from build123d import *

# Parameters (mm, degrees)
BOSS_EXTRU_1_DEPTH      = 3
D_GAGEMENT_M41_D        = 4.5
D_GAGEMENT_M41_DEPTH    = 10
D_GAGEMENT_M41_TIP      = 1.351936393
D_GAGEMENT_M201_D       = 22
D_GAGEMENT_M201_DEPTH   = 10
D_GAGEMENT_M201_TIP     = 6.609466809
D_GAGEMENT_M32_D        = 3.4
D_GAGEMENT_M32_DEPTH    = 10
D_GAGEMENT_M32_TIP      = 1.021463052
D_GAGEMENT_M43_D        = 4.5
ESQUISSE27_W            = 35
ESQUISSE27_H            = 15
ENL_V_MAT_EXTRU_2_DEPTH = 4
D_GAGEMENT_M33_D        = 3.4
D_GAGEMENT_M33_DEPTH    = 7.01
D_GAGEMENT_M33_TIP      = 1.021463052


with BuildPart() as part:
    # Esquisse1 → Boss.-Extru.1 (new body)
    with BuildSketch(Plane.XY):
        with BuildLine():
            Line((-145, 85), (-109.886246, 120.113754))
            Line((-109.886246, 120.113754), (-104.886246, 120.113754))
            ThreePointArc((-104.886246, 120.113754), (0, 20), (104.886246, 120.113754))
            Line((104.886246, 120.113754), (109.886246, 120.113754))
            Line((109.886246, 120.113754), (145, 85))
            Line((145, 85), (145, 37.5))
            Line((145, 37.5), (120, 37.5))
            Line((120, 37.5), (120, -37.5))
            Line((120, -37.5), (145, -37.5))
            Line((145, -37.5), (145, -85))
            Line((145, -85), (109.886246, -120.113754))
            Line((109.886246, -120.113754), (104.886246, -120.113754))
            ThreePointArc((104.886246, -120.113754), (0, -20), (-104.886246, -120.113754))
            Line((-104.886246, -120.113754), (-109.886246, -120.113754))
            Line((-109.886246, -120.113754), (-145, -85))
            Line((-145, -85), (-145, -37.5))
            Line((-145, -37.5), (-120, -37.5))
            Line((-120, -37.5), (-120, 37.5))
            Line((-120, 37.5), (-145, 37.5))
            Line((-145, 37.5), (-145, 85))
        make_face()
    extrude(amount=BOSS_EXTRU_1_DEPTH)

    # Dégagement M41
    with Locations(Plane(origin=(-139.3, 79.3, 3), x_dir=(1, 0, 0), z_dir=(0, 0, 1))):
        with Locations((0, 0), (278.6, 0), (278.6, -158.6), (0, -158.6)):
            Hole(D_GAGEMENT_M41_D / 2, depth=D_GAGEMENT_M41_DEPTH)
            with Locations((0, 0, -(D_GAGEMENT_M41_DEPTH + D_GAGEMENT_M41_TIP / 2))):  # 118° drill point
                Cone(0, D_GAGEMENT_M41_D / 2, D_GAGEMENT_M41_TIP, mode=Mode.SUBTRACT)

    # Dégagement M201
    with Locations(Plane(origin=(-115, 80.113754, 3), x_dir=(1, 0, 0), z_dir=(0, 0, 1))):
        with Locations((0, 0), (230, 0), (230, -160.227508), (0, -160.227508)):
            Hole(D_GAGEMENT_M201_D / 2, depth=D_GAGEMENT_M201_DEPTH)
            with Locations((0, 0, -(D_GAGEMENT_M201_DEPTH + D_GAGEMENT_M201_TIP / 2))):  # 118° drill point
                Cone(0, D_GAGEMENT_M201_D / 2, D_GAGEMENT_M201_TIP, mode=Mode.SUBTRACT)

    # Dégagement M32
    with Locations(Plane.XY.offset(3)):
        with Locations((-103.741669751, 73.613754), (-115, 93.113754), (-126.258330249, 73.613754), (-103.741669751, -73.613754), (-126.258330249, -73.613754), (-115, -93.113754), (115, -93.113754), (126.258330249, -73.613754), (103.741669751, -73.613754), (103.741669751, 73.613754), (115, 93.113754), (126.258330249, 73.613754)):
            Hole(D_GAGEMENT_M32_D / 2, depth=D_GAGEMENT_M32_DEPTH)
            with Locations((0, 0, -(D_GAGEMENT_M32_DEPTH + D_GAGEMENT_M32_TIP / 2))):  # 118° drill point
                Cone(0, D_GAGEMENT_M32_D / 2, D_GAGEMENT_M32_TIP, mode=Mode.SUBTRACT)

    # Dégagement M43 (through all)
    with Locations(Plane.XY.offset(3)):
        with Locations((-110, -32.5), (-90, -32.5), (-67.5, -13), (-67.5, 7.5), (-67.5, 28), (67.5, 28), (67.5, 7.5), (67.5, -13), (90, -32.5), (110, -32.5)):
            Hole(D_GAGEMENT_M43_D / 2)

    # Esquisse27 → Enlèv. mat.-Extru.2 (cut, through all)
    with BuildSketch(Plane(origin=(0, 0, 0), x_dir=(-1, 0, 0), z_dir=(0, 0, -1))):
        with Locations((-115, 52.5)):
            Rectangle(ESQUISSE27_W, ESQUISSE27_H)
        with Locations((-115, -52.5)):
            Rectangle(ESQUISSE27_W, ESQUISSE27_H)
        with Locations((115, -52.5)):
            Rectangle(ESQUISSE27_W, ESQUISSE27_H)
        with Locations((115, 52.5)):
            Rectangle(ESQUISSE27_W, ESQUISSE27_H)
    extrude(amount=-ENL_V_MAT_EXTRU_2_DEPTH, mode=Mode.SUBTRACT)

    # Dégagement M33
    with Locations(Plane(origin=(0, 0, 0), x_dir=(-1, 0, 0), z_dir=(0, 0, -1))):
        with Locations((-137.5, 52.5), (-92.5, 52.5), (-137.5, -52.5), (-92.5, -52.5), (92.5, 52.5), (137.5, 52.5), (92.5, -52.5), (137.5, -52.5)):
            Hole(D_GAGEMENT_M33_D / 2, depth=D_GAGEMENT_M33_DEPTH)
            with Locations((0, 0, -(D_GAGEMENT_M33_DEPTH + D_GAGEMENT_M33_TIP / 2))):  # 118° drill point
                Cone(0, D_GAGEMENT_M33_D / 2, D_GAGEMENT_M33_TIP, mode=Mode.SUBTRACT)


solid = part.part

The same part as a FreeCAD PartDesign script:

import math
import FreeCAD as App
import Part
import Sketcher
Q = App.Units.Quantity


def add_polygon(sketch, points):
    """Adds a closed chain of lines whose ends are joined by coincident constraints."""
    first, n = sketch.GeometryCount, len(points)
    for a, b in zip(points, points[1:] + points[:1]):
        sketch.addGeometry(Part.LineSegment(App.Vector(*a, 0), App.Vector(*b, 0)), False)
    for i in range(n):
        sketch.addConstraint(Sketcher.Constraint("Coincident", first + i, 2, first + (i + 1) % n, 1))

doc = App.newDocument("Part")
body = doc.addObject("PartDesign::Body", "Body")

# Sketch on XY plane
sketch1 = body.newObject("Sketcher::SketchObject", "Sketch")
sketch1.AttachmentSupport = (doc.getObject("XY_Plane"), [""])
sketch1.MapMode = "FlatFace"
sketch1.addGeometry(Part.LineSegment(App.Vector(-110, 120, 0), App.Vector(-145, 85, 0)), False)
sketch1.addGeometry(Part.LineSegment(App.Vector(-145, 85, 0), App.Vector(-145, 38, 0)), False)
sketch1.addGeometry(Part.LineSegment(App.Vector(-145, 38, 0), App.Vector(-120, 38, 0)), False)
sketch1.addGeometry(Part.LineSegment(App.Vector(-120, 38, 0), App.Vector(-120, -38, 0)), False)
sketch1.addGeometry(Part.LineSegment(App.Vector(-120, -38, 0), App.Vector(-145, -38, 0)), False)
sketch1.addGeometry(Part.LineSegment(App.Vector(-145, -38, 0), App.Vector(-145, -85, 0)), False)
sketch1.addGeometry(Part.LineSegment(App.Vector(-145, -85, 0), App.Vector(-110, -120, 0)), False)
sketch1.addGeometry(Part.LineSegment(App.Vector(-110, -120, 0), App.Vector(-105, -120, 0)), False)
sketch1.addGeometry(Part.ArcOfCircle(Part.Circle(App.Vector(0, -125, 0), App.Vector(0, 0, 1), 105), math.radians(3), math.radians(177)), False)
sketch1.addGeometry(Part.LineSegment(App.Vector(105, -120, 0), App.Vector(110, -120, 0)), False)
sketch1.addGeometry(Part.LineSegment(App.Vector(110, -120, 0), App.Vector(145, -85, 0)), False)
sketch1.addGeometry(Part.LineSegment(App.Vector(145, -85, 0), App.Vector(145, -38, 0)), False)
sketch1.addGeometry(Part.LineSegment(App.Vector(145, -38, 0), App.Vector(120, -38, 0)), False)
sketch1.addGeometry(Part.LineSegment(App.Vector(120, -38, 0), App.Vector(120, 38, 0)), False)
sketch1.addGeometry(Part.LineSegment(App.Vector(120, 38, 0), App.Vector(145, 38, 0)), False)
sketch1.addGeometry(Part.LineSegment(App.Vector(145, 38, 0), App.Vector(145, 85, 0)), False)
sketch1.addGeometry(Part.LineSegment(App.Vector(145, 85, 0), App.Vector(110, 120, 0)), False)
sketch1.addGeometry(Part.LineSegment(App.Vector(110, 120, 0), App.Vector(105, 120, 0)), False)
sketch1.addGeometry(Part.ArcOfCircle(Part.Circle(App.Vector(0, 125, 0), App.Vector(0, 0, 1), 105), math.radians(-177), math.radians(-3)), False)
sketch1.addGeometry(Part.LineSegment(App.Vector(-105, 120, 0), App.Vector(-110, 120, 0)), False)
sketch1.addConstraint(Sketcher.Constraint("Coincident", 0, 2, 1, 1))
sketch1.addConstraint(Sketcher.Constraint("Coincident", 1, 2, 2, 1))
sketch1.addConstraint(Sketcher.Constraint("Coincident", 2, 2, 3, 1))
sketch1.addConstraint(Sketcher.Constraint("Coincident", 3, 2, 4, 1))
sketch1.addConstraint(Sketcher.Constraint("Coincident", 4, 2, 5, 1))
sketch1.addConstraint(Sketcher.Constraint("Coincident", 5, 2, 6, 1))
sketch1.addConstraint(Sketcher.Constraint("Coincident", 6, 2, 7, 1))
sketch1.addConstraint(Sketcher.Constraint("Coincident", 7, 2, 8, 2))
sketch1.addConstraint(Sketcher.Constraint("Coincident", 8, 1, 9, 1))
sketch1.addConstraint(Sketcher.Constraint("Coincident", 9, 2, 10, 1))
sketch1.addConstraint(Sketcher.Constraint("Coincident", 10, 2, 11, 1))
sketch1.addConstraint(Sketcher.Constraint("Coincident", 11, 2, 12, 1))
sketch1.addConstraint(Sketcher.Constraint("Coincident", 12, 2, 13, 1))
sketch1.addConstraint(Sketcher.Constraint("Coincident", 13, 2, 14, 1))
sketch1.addConstraint(Sketcher.Constraint("Coincident", 14, 2, 15, 1))
sketch1.addConstraint(Sketcher.Constraint("Coincident", 15, 2, 16, 1))
sketch1.addConstraint(Sketcher.Constraint("Coincident", 16, 2, 17, 1))
sketch1.addConstraint(Sketcher.Constraint("Coincident", 17, 2, 18, 2))
sketch1.addConstraint(Sketcher.Constraint("Coincident", 18, 1, 19, 1))
sketch1.addConstraint(Sketcher.Constraint("Coincident", 19, 2, 0, 1))
sketch1.addConstraint(Sketcher.Constraint("Vertical", 1))
sketch1.addConstraint(Sketcher.Constraint("Horizontal", 2))
sketch1.addConstraint(Sketcher.Constraint("Vertical", 3))
sketch1.addConstraint(Sketcher.Constraint("Horizontal", 4))
sketch1.addConstraint(Sketcher.Constraint("Vertical", 5))
sketch1.addConstraint(Sketcher.Constraint("Horizontal", 7))
sketch1.addConstraint(Sketcher.Constraint("Horizontal", 9))
sketch1.addConstraint(Sketcher.Constraint("Vertical", 11))
sketch1.addConstraint(Sketcher.Constraint("Horizontal", 12))
sketch1.addConstraint(Sketcher.Constraint("Vertical", 13))
sketch1.addConstraint(Sketcher.Constraint("Horizontal", 14))
sketch1.addConstraint(Sketcher.Constraint("Vertical", 15))
sketch1.addConstraint(Sketcher.Constraint("Horizontal", 17))
sketch1.addConstraint(Sketcher.Constraint("Horizontal", 19))
sketch1.addConstraint(Sketcher.Constraint("Equal", 8, 18))
sketch1.addConstraint(Sketcher.Constraint("Symmetric", 8, 3, 18, 3, -1, 1))
sketch1.addConstraint(Sketcher.Constraint("Symmetric", 0, 2, 10, 2, -1, 1))
sketch1.addConstraint(Sketcher.Constraint("Symmetric", 2, 2, 12, 2, -1, 1))
sketch1.addConstraint(Sketcher.Constraint("Symmetric", 4, 2, 14, 2, -1, 1))
sketch1.addConstraint(Sketcher.Constraint("Symmetric", 6, 2, 16, 2, -1, 1))
sketch1.addConstraint(Sketcher.Constraint("Symmetric", 9, 2, 19, 2, -1, 1))
sketch1.addConstraint(Sketcher.Constraint("Symmetric", 7, 2, 8, 1, -2))
sketch1.addConstraint(Sketcher.Constraint("Symmetric", 5, 2, 10, 2, -2))
sketch1.addConstraint(Sketcher.Constraint("Perpendicular", 0, 6))
sketch1.addConstraint(Sketcher.Constraint("Perpendicular", 10, 16))
sketch1.addConstraint(Sketcher.Constraint("Horizontal", 4, 2, 11, 2))
sketch1.addConstraint(Sketcher.Constraint("Vertical", 9, 2, 16, 2))
sketch1.addConstraint(Sketcher.Constraint("Radius", 8, Q("105 mm")))
sketch1.addConstraint(Sketcher.Constraint("DistanceX", 2, 1, 2, 2, Q("25 mm")))
sketch1.addConstraint(Sketcher.Constraint("DistanceX", 7, 1, 7, 2, Q("5 mm")))
sketch1.addConstraint(Sketcher.Constraint("DistanceY", 3, 2, 3, 1, Q("75 mm")))
sketch1.addConstraint(Sketcher.Constraint("DistanceY", 1, 2, 1, 1, Q("47.5 mm")))
sketch1.addConstraint(Sketcher.Constraint("DistanceY", 8, 3, -1, 1, Q("125 mm")))
sketch1.addConstraint(Sketcher.Constraint("DistanceX", 0, 2, -1, 1, Q("145 mm")))
pad1 = body.newObject("PartDesign::Pad", "Pad")
pad1.Profile = sketch1
pad1.Length = 3

# Sketch on XY plane
sketch2 = body.newObject("Sketcher::SketchObject", "Sketch001")
sketch2.AttachmentSupport = (doc.getObject("XY_Plane"), [""])
sketch2.MapMode = "FlatFace"
sketch2.AttachmentOffset = App.Placement(App.Vector(0, 0, 3), App.Rotation())
sketch2.addGeometry(Part.Circle(App.Vector(-139.3, 79.3, 0), App.Vector(0, 0, 1), 2.2), False)
sketch2.addGeometry(Part.Circle(App.Vector(139.3, 79.3, 0), App.Vector(0, 0, 1), 2.2), False)
sketch2.addGeometry(Part.Circle(App.Vector(139.3, -79.3, 0), App.Vector(0, 0, 1), 2.2), False)
sketch2.addGeometry(Part.Circle(App.Vector(-139.3, -79.3, 0), App.Vector(0, 0, 1), 2.2), False)
sketch2.addConstraint(Sketcher.Constraint("Equal", 0, 1))
sketch2.addConstraint(Sketcher.Constraint("Equal", 1, 2))
sketch2.addConstraint(Sketcher.Constraint("Equal", 2, 3))
sketch2.addConstraint(Sketcher.Constraint("Symmetric", 0, 3, 2, 3, -1, 1))
sketch2.addConstraint(Sketcher.Constraint("Symmetric", 1, 3, 3, 3, -1, 1))
sketch2.addConstraint(Sketcher.Constraint("Symmetric", 0, 3, 1, 3, -2))
sketch2.addConstraint(Sketcher.Constraint("Diameter", 0, Q("4.5 mm")))
sketch2.addConstraint(Sketcher.Constraint("DistanceX", 0, 3, -1, 1, Q("139.3 mm")))
sketch2.addConstraint(Sketcher.Constraint("DistanceY", -1, 1, 0, 3, Q("79.3 mm")))
doc.recompute()
hole = body.newObject("PartDesign::Hole", "Hole")
hole.Profile = sketch2
hole.ThreadType = "None"
hole.Diameter = 4.5
hole.DepthType = "Dimension"
hole.Depth = 10
hole.DrillPoint = "Angled"
hole.DrillPointAngle = 118

# Sketch on XY plane
sketch3 = body.newObject("Sketcher::SketchObject", "Sketch002")
sketch3.AttachmentSupport = (doc.getObject("XY_Plane"), [""])
sketch3.MapMode = "FlatFace"
sketch3.AttachmentOffset = App.Placement(App.Vector(0, 0, 3), App.Rotation())
sketch3.addGeometry(Part.Circle(App.Vector(-115, 80, 0), App.Vector(0, 0, 1), 11), False)
sketch3.addGeometry(Part.Circle(App.Vector(115, 80, 0), App.Vector(0, 0, 1), 11), False)
sketch3.addGeometry(Part.Circle(App.Vector(115, -80, 0), App.Vector(0, 0, 1), 11), False)
sketch3.addGeometry(Part.Circle(App.Vector(-115, -80, 0), App.Vector(0, 0, 1), 11), False)
sketch3.addConstraint(Sketcher.Constraint("Equal", 0, 1))
sketch3.addConstraint(Sketcher.Constraint("Equal", 1, 2))
sketch3.addConstraint(Sketcher.Constraint("Equal", 2, 3))
sketch3.addConstraint(Sketcher.Constraint("Symmetric", 0, 3, 2, 3, -1, 1))
sketch3.addConstraint(Sketcher.Constraint("Symmetric", 1, 3, 3, 3, -1, 1))
sketch3.addConstraint(Sketcher.Constraint("Symmetric", 0, 3, 1, 3, -2))
sketch3.addConstraint(Sketcher.Constraint("Diameter", 0, Q("22 mm")))
sketch3.addConstraint(Sketcher.Constraint("DistanceX", 0, 3, -1, 1, Q("115 mm")))
sketch3.addConstraint(Sketcher.Constraint("DistanceY", 2, 3, 1, 3, Q("160.227508 mm")))
doc.recompute()
hole2 = body.newObject("PartDesign::Hole", "Hole001")
hole2.Profile = sketch3
hole2.ThreadType = "None"
hole2.Diameter = 22
hole2.DepthType = "Dimension"
hole2.Depth = 10
hole2.DrillPoint = "Angled"
hole2.DrillPointAngle = 118

# Sketch on XY plane
sketch4 = body.newObject("Sketcher::SketchObject", "Sketch003")
sketch4.AttachmentSupport = (doc.getObject("XY_Plane"), [""])
sketch4.MapMode = "FlatFace"
sketch4.AttachmentOffset = App.Placement(App.Vector(0, 0, 3), App.Rotation())
sketch4.addGeometry(Part.Circle(App.Vector(-103.7, 73.6, 0), App.Vector(0, 0, 1), 1.7), False)
sketch4.addGeometry(Part.Circle(App.Vector(-115, 93.1, 0), App.Vector(0, 0, 1), 1.7), False)
sketch4.addGeometry(Part.Circle(App.Vector(-126.3, 73.6, 0), App.Vector(0, 0, 1), 1.7), False)
sketch4.addGeometry(Part.Circle(App.Vector(-103.7, -73.6, 0), App.Vector(0, 0, 1), 1.7), False)
sketch4.addGeometry(Part.Circle(App.Vector(-126.3, -73.6, 0), App.Vector(0, 0, 1), 1.7), False)
sketch4.addGeometry(Part.Circle(App.Vector(-115, -93.1, 0), App.Vector(0, 0, 1), 1.7), False)
sketch4.addGeometry(Part.Circle(App.Vector(115, -93.1, 0), App.Vector(0, 0, 1), 1.7), False)
sketch4.addGeometry(Part.Circle(App.Vector(126.3, -73.6, 0), App.Vector(0, 0, 1), 1.7), False)
sketch4.addGeometry(Part.Circle(App.Vector(103.7, -73.6, 0), App.Vector(0, 0, 1), 1.7), False)
sketch4.addGeometry(Part.Circle(App.Vector(103.7, 73.6, 0), App.Vector(0, 0, 1), 1.7), False)
sketch4.addGeometry(Part.Circle(App.Vector(115, 93.1, 0), App.Vector(0, 0, 1), 1.7), False)
sketch4.addGeometry(Part.Circle(App.Vector(126.3, 73.6, 0), App.Vector(0, 0, 1), 1.7), False)
sketch4.addConstraint(Sketcher.Constraint("Equal", 0, 1))
sketch4.addConstraint(Sketcher.Constraint("Equal", 1, 2))
sketch4.addConstraint(Sketcher.Constraint("Equal", 2, 3))
sketch4.addConstraint(Sketcher.Constraint("Equal", 3, 4))
sketch4.addConstraint(Sketcher.Constraint("Equal", 4, 5))
sketch4.addConstraint(Sketcher.Constraint("Equal", 5, 6))
sketch4.addConstraint(Sketcher.Constraint("Equal", 6, 7))
sketch4.addConstraint(Sketcher.Constraint("Equal", 7, 8))
sketch4.addConstraint(Sketcher.Constraint("Equal", 8, 9))
sketch4.addConstraint(Sketcher.Constraint("Equal", 9, 10))
sketch4.addConstraint(Sketcher.Constraint("Equal", 10, 11))
sketch4.addConstraint(Sketcher.Constraint("Symmetric", 1, 3, 6, 3, -1, 1))
sketch4.addConstraint(Sketcher.Constraint("Symmetric", 2, 3, 7, 3, -1, 1))
sketch4.addConstraint(Sketcher.Constraint("Symmetric", 0, 3, 8, 3, -1, 1))
sketch4.addConstraint(Sketcher.Constraint("Symmetric", 3, 3, 9, 3, -1, 1))
sketch4.addConstraint(Sketcher.Constraint("Symmetric", 5, 3, 10, 3, -1, 1))
sketch4.addConstraint(Sketcher.Constraint("Symmetric", 4, 3, 11, 3, -1, 1))
sketch4.addConstraint(Sketcher.Constraint("Symmetric", 5, 3, 6, 3, -2))
sketch4.addConstraint(Sketcher.Constraint("Symmetric", 4, 3, 7, 3, -2))
sketch4.addConstraint(Sketcher.Constraint("Symmetric", 3, 3, 8, 3, -2))
sketch4.addConstraint(Sketcher.Constraint("Horizontal", 0, 3, 2, 3))
sketch4.addConstraint(Sketcher.Constraint("Diameter", 0, Q("3.4 mm")))
sketch4.addConstraint(Sketcher.Constraint("DistanceX", 1, 3, -1, 1, Q("115 mm")))
sketch4.addConstraint(Sketcher.Constraint("DistanceX", 3, 3, 7, 3, Q("230 mm")))
sketch4.addConstraint(Sketcher.Constraint("DistanceY", 0, 3, 1, 3, Q("19.5 mm")))
sketch4.addConstraint(Sketcher.Constraint("DistanceX", 0, 3, -1, 1, Q("103.74167 mm")))
sketch4.addConstraint(Sketcher.Constraint("DistanceY", 3, 3, 0, 3, Q("147.227508 mm")))
doc.recompute()
hole3 = body.newObject("PartDesign::Hole", "Hole002")
hole3.Profile = sketch4
hole3.ThreadType = "None"
hole3.Diameter = 3.4
hole3.DepthType = "Dimension"
hole3.Depth = 10
hole3.DrillPoint = "Angled"
hole3.DrillPointAngle = 118

# Sketch on XY plane
sketch5 = body.newObject("Sketcher::SketchObject", "Sketch004")
sketch5.AttachmentSupport = (doc.getObject("XY_Plane"), [""])
sketch5.MapMode = "FlatFace"
sketch5.AttachmentOffset = App.Placement(App.Vector(0, 0, 3), App.Rotation())
sketch5.addGeometry(Part.Circle(App.Vector(-110, -32.5, 0), App.Vector(0, 0, 1), 2.2), False)
sketch5.addGeometry(Part.Circle(App.Vector(-90, -32.5, 0), App.Vector(0, 0, 1), 2.2), False)
sketch5.addGeometry(Part.Circle(App.Vector(-67.5, -13, 0), App.Vector(0, 0, 1), 2.2), False)
sketch5.addGeometry(Part.Circle(App.Vector(-67.5, 7.5, 0), App.Vector(0, 0, 1), 2.2), False)
sketch5.addGeometry(Part.Circle(App.Vector(-67.5, 28, 0), App.Vector(0, 0, 1), 2.2), False)
sketch5.addGeometry(Part.Circle(App.Vector(67.5, 28, 0), App.Vector(0, 0, 1), 2.2), False)
sketch5.addGeometry(Part.Circle(App.Vector(67.5, 7.5, 0), App.Vector(0, 0, 1), 2.2), False)
sketch5.addGeometry(Part.Circle(App.Vector(67.5, -13, 0), App.Vector(0, 0, 1), 2.2), False)
sketch5.addGeometry(Part.Circle(App.Vector(90, -32.5, 0), App.Vector(0, 0, 1), 2.2), False)
sketch5.addGeometry(Part.Circle(App.Vector(110, -32.5, 0), App.Vector(0, 0, 1), 2.2), False)
sketch5.addConstraint(Sketcher.Constraint("Equal", 0, 1))
sketch5.addConstraint(Sketcher.Constraint("Equal", 1, 2))
sketch5.addConstraint(Sketcher.Constraint("Equal", 2, 3))
sketch5.addConstraint(Sketcher.Constraint("Equal", 3, 4))
sketch5.addConstraint(Sketcher.Constraint("Equal", 4, 5))
sketch5.addConstraint(Sketcher.Constraint("Equal", 5, 6))
sketch5.addConstraint(Sketcher.Constraint("Equal", 6, 7))
sketch5.addConstraint(Sketcher.Constraint("Equal", 7, 8))
sketch5.addConstraint(Sketcher.Constraint("Equal", 8, 9))
sketch5.addConstraint(Sketcher.Constraint("Symmetric", 4, 3, 5, 3, -2))
sketch5.addConstraint(Sketcher.Constraint("Symmetric", 3, 3, 6, 3, -2))
sketch5.addConstraint(Sketcher.Constraint("Symmetric", 2, 3, 7, 3, -2))
sketch5.addConstraint(Sketcher.Constraint("Symmetric", 1, 3, 8, 3, -2))
sketch5.addConstraint(Sketcher.Constraint("Symmetric", 0, 3, 9, 3, -2))
sketch5.addConstraint(Sketcher.Constraint("Horizontal", 0, 3, 1, 3))
sketch5.addConstraint(Sketcher.Constraint("Vertical", 2, 3, 3, 3))
sketch5.addConstraint(Sketcher.Constraint("Vertical", 3, 3, 4, 3))
sketch5.addConstraint(Sketcher.Constraint("Diameter", 0, Q("4.5 mm")))
sketch5.addConstraint(Sketcher.Constraint("DistanceX", 0, 3, -1, 1, Q("110 mm")))
sketch5.addConstraint(Sketcher.Constraint("DistanceX", 1, 3, -1, 1, Q("90 mm")))
sketch5.addConstraint(Sketcher.Constraint("DistanceY", 2, 3, -1, 1, Q("13 mm")))
sketch5.addConstraint(Sketcher.Constraint("DistanceY", -1, 1, 4, 3, Q("28 mm")))
sketch5.addConstraint(Sketcher.Constraint("DistanceY", 1, 3, 3, 3, Q("40 mm")))
sketch5.addConstraint(Sketcher.Constraint("DistanceX", 4, 3, 5, 3, Q("135 mm")))
sketch5.addConstraint(Sketcher.Constraint("DistanceY", 0, 3, -1, 1, Q("32.5 mm")))
doc.recompute()
hole4 = body.newObject("PartDesign::Hole", "Hole003")
hole4.Profile = sketch5
hole4.ThreadType = "None"
hole4.Diameter = 4.5
hole4.DepthType = "ThroughAll"

# Sketch on XY plane
sketch6 = body.newObject("Sketcher::SketchObject", "Sketch005")
sketch6.AttachmentSupport = (doc.getObject("XY_Plane"), [""])
sketch6.MapMode = "FlatFace"
add_polygon(sketch6, [(132, 60), (132, 45), (98, 45), (98, 60)])  # lines 0-3
add_polygon(sketch6, [(132, -45), (132, -60), (98, -60), (98, -45)])  # lines 4-7
add_polygon(sketch6, [(-98, -45), (-98, -60), (-132, -60), (-132, -45)])  # lines 8-11
add_polygon(sketch6, [(-98, 60), (-98, 45), (-132, 45), (-132, 60)])  # lines 12-15
sketch6.addConstraint(Sketcher.Constraint("Vertical", 0))
sketch6.addConstraint(Sketcher.Constraint("Horizontal", 1))
sketch6.addConstraint(Sketcher.Constraint("Vertical", 2))
sketch6.addConstraint(Sketcher.Constraint("Horizontal", 3))
sketch6.addConstraint(Sketcher.Constraint("Vertical", 4))
sketch6.addConstraint(Sketcher.Constraint("Horizontal", 5))
sketch6.addConstraint(Sketcher.Constraint("Vertical", 6))
sketch6.addConstraint(Sketcher.Constraint("Horizontal", 7))
sketch6.addConstraint(Sketcher.Constraint("Vertical", 8))
sketch6.addConstraint(Sketcher.Constraint("Horizontal", 9))
sketch6.addConstraint(Sketcher.Constraint("Vertical", 10))
sketch6.addConstraint(Sketcher.Constraint("Horizontal", 11))
sketch6.addConstraint(Sketcher.Constraint("Vertical", 12))
sketch6.addConstraint(Sketcher.Constraint("Horizontal", 13))
sketch6.addConstraint(Sketcher.Constraint("Vertical", 14))
sketch6.addConstraint(Sketcher.Constraint("Horizontal", 15))
sketch6.addConstraint(Sketcher.Constraint("Symmetric", 2, 2, 8, 2, -1, 1))
sketch6.addConstraint(Sketcher.Constraint("Symmetric", 0, 2, 10, 2, -1, 1))
sketch6.addConstraint(Sketcher.Constraint("Symmetric", 6, 2, 12, 2, -1, 1))
sketch6.addConstraint(Sketcher.Constraint("Symmetric", 4, 2, 14, 2, -1, 1))
sketch6.addConstraint(Sketcher.Constraint("Symmetric", 5, 2, 8, 2, -2))
sketch6.addConstraint(Sketcher.Constraint("Symmetric", 7, 2, 10, 2, -2))
sketch6.addConstraint(Sketcher.Constraint("DistanceX", 1, 2, 1, 1, Q("35 mm")))
sketch6.addConstraint(Sketcher.Constraint("DistanceY", 0, 2, 0, 1, Q("15 mm")))
sketch6.addConstraint(Sketcher.Constraint("DistanceY", -1, 1, 0, 2, Q("45 mm")))
sketch6.addConstraint(Sketcher.Constraint("DistanceX", 8, 2, 5, 2, Q("195 mm")))
pocket1 = body.newObject("PartDesign::Pocket", "Pocket")
pocket1.Profile = sketch6
pocket1.Type = "ThroughAll"
pocket1.Reversed = True

# Sketch on XY plane
sketch7 = body.newObject("Sketcher::SketchObject", "Sketch006")
sketch7.AttachmentSupport = (doc.getObject("XY_Plane"), [""])
sketch7.MapMode = "FlatFace"
sketch7.addGeometry(Part.Circle(App.Vector(137.5, 52.5, 0), App.Vector(0, 0, 1), 1.7), False)
sketch7.addGeometry(Part.Circle(App.Vector(92.5, 52.5, 0), App.Vector(0, 0, 1), 1.7), False)
sketch7.addGeometry(Part.Circle(App.Vector(137.5, -52.5, 0), App.Vector(0, 0, 1), 1.7), False)
sketch7.addGeometry(Part.Circle(App.Vector(92.5, -52.5, 0), App.Vector(0, 0, 1), 1.7), False)
sketch7.addGeometry(Part.Circle(App.Vector(-92.5, 52.5, 0), App.Vector(0, 0, 1), 1.7), False)
sketch7.addGeometry(Part.Circle(App.Vector(-137.5, 52.5, 0), App.Vector(0, 0, 1), 1.7), False)
sketch7.addGeometry(Part.Circle(App.Vector(-92.5, -52.5, 0), App.Vector(0, 0, 1), 1.7), False)
sketch7.addGeometry(Part.Circle(App.Vector(-137.5, -52.5, 0), App.Vector(0, 0, 1), 1.7), False)
sketch7.addConstraint(Sketcher.Constraint("Equal", 0, 1))
sketch7.addConstraint(Sketcher.Constraint("Equal", 1, 2))
sketch7.addConstraint(Sketcher.Constraint("Equal", 2, 3))
sketch7.addConstraint(Sketcher.Constraint("Equal", 3, 4))
sketch7.addConstraint(Sketcher.Constraint("Equal", 4, 5))
sketch7.addConstraint(Sketcher.Constraint("Equal", 5, 6))
sketch7.addConstraint(Sketcher.Constraint("Equal", 6, 7))
sketch7.addConstraint(Sketcher.Constraint("Symmetric", 3, 3, 4, 3, -1, 1))
sketch7.addConstraint(Sketcher.Constraint("Symmetric", 2, 3, 5, 3, -1, 1))
sketch7.addConstraint(Sketcher.Constraint("Symmetric", 1, 3, 6, 3, -1, 1))
sketch7.addConstraint(Sketcher.Constraint("Symmetric", 0, 3, 7, 3, -1, 1))
sketch7.addConstraint(Sketcher.Constraint("Symmetric", 1, 3, 4, 3, -2))
sketch7.addConstraint(Sketcher.Constraint("Symmetric", 0, 3, 5, 3, -2))
sketch7.addConstraint(Sketcher.Constraint("Horizontal", 0, 3, 1, 3))
sketch7.addConstraint(Sketcher.Constraint("Diameter", 0, Q("3.4 mm")))
sketch7.addConstraint(Sketcher.Constraint("DistanceX", 1, 3, 0, 3, Q("45 mm")))
sketch7.addConstraint(Sketcher.Constraint("DistanceY", 2, 3, 0, 3, Q("105 mm")))
sketch7.addConstraint(Sketcher.Constraint("DistanceX", 4, 3, 1, 3, Q("185 mm")))
doc.recompute()
hole5 = body.newObject("PartDesign::Hole", "Hole004")
hole5.Profile = sketch7
hole5.ThreadType = "None"
hole5.Diameter = 3.4
hole5.DepthType = "Dimension"
hole5.Depth = 7.01
hole5.DrillPoint = "Angled"
hole5.DrillPointAngle = 118
hole5.Reversed = True

doc.recompute()
